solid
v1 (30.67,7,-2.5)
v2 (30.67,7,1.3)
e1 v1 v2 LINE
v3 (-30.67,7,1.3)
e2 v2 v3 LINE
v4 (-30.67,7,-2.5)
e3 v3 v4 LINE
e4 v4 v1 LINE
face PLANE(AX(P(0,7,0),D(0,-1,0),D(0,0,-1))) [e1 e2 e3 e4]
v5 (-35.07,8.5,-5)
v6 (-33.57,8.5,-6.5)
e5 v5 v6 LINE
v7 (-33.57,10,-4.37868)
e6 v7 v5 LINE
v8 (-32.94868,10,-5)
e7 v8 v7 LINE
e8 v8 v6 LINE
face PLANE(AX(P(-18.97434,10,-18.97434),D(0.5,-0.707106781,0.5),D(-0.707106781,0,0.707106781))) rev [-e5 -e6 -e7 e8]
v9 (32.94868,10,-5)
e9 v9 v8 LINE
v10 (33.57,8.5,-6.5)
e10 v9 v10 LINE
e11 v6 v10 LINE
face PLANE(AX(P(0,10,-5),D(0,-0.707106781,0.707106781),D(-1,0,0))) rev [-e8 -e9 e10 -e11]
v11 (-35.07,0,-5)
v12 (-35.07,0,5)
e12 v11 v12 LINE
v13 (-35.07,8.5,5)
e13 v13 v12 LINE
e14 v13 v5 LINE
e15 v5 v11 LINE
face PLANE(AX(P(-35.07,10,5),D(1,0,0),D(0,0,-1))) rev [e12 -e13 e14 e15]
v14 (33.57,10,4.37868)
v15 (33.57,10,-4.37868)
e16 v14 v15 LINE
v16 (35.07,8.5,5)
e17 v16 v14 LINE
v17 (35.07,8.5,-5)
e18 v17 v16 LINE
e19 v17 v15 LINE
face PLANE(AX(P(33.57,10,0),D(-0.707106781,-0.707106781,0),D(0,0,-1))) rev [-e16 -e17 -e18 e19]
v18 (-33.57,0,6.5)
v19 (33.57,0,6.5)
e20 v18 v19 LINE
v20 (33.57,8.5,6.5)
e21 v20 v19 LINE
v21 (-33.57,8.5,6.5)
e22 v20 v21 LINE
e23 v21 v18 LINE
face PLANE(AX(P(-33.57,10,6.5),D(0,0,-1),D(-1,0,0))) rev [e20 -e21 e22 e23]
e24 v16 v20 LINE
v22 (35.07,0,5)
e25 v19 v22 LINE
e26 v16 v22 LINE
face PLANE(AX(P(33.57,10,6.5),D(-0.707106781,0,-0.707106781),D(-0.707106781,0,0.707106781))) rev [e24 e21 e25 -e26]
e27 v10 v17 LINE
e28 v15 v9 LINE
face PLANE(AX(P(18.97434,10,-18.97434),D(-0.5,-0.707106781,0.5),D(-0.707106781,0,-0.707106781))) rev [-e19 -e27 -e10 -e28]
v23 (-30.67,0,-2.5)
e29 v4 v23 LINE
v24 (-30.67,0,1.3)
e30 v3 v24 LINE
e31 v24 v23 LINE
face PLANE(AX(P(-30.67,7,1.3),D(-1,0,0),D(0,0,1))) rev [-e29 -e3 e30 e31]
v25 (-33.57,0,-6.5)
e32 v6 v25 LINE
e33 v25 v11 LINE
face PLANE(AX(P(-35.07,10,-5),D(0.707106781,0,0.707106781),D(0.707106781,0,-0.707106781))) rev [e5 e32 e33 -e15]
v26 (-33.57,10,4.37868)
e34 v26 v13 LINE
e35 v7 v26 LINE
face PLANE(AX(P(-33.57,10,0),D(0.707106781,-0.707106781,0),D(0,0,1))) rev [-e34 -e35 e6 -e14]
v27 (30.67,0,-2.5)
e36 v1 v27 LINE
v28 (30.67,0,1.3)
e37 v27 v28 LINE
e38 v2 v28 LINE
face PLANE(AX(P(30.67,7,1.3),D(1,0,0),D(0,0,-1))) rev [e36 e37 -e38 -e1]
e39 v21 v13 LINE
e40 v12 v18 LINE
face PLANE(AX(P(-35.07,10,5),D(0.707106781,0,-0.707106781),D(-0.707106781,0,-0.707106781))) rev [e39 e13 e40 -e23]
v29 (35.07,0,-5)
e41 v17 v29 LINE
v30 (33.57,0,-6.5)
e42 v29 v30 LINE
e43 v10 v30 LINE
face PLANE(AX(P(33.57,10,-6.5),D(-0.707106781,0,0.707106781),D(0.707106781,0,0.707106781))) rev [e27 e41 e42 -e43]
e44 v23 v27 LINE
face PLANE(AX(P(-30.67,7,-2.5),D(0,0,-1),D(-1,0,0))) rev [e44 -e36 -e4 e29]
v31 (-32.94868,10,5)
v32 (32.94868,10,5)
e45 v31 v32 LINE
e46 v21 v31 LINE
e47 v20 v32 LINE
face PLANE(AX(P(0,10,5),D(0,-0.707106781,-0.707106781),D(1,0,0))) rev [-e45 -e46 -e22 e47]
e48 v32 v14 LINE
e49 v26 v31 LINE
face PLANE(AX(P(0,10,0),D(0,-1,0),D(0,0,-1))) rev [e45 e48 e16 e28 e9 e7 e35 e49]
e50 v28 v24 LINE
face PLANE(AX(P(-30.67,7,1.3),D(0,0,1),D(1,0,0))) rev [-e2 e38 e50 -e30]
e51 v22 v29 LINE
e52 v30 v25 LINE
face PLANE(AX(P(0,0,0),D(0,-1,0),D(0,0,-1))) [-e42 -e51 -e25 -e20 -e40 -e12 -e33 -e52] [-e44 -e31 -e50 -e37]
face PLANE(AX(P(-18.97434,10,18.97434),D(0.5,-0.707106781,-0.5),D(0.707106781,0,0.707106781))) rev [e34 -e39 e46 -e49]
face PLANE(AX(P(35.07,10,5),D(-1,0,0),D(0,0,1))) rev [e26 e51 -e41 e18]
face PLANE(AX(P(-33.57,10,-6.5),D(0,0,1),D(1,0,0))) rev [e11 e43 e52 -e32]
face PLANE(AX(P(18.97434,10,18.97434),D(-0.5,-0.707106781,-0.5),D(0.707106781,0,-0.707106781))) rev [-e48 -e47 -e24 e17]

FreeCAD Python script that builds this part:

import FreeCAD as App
import Part
import Sketcher
Q = App.Units.Quantity


def edges_at(feature, points):
    """Names of the edges that pass closest to the given points."""
    edges = feature.Shape.Edges
    near = lambda p: min(range(len(edges)), key=lambda i: edges[i].distToShape(Part.Vertex(*p))[0])
    return sorted({f"Edge{near(p) + 1}" for p in points})

doc = App.newDocument("Part")
params = doc.addObject("Spreadsheet::Sheet", "Params")
for row, (alias, value) in enumerate([
    ("sketch1_height", "10 mm"),
    ("sketch1_width", "67.14 mm"),
    ("pad1_length", "10 mm"),
    ("chamfer_size", "1.5 mm"),
    ("sketch2_height", "3.8 mm"),
    ("sketch2_width", "61.34 mm"),
    ("pocket1_length", "7 mm"),
], start=1):
    params.set(f"A{row}", alias)
    params.set(f"B{row}", "=" + value)
    params.setAlias(f"B{row}", alias)

body = doc.addObject("PartDesign::Body", "Body")

sketch1 = doc.addObject("Sketcher::SketchObject", "Sketch")
body.addObject(sketch1)
sketch1.AttachmentSupport = (doc.XZ_Plane, [""])
sketch1.MapMode = "FlatFace"
sketch1.addGeometry(Part.LineSegment(App.Vector(-33.6, -6.5, 0), App.Vector(-35.1, -5, 0)), False)
sketch1.addGeometry(Part.LineSegment(App.Vector(-35.1, -5, 0), App.Vector(-35.1, 5, 0)), False)
sketch1.addGeometry(Part.LineSegment(App.Vector(-35.1, 5, 0), App.Vector(-33.6, 6.5, 0)), False)
sketch1.addGeometry(Part.LineSegment(App.Vector(-33.6, 6.5, 0), App.Vector(33.6, 6.5, 0)), False)
sketch1.addGeometry(Part.LineSegment(App.Vector(33.6, 6.5, 0), App.Vector(35.1, 5, 0)), False)
sketch1.addGeometry(Part.LineSegment(App.Vector(35.1, 5, 0), App.Vector(35.1, -5, 0)), False)
sketch1.addGeometry(Part.LineSegment(App.Vector(35.1, -5, 0), App.Vector(33.6, -6.5, 0)), False)
sketch1.addGeometry(Part.LineSegment(App.Vector(33.6, -6.5, 0), App.Vector(-33.6, -6.5, 0)), False)
sketch1.addConstraint(Sketcher.Constraint("Coincident", 0, 2, 1, 1))
sketch1.addConstraint(Sketcher.Constraint("Coincident", 1, 2, 2, 1))
sketch1.addConstraint(Sketcher.Constraint("Coincident", 2, 2, 3, 1))
sketch1.addConstraint(Sketcher.Constraint("Coincident", 3, 2, 4, 1))
sketch1.addConstraint(Sketcher.Constraint("Coincident", 4, 2, 5, 1))
sketch1.addConstraint(Sketcher.Constraint("Coincident", 5, 2, 6, 1))
sketch1.addConstraint(Sketcher.Constraint("Coincident", 6, 2, 7, 1))
sketch1.addConstraint(Sketcher.Constraint("Coincident", 7, 2, 0, 1))
sketch1.addConstraint(Sketcher.Constraint("Vertical", 1))
sketch1.addConstraint(Sketcher.Constraint("Horizontal", 3))
sketch1.addConstraint(Sketcher.Constraint("Vertical", 5))
sketch1.addConstraint(Sketcher.Constraint("Horizontal", 7))
sketch1.addConstraint(Sketcher.Constraint("Symmetric", 0, 2, 4, 2, -1, 1))
sketch1.addConstraint(Sketcher.Constraint("Symmetric", 2, 2, 6, 2, -1, 1))
sketch1.addConstraint(Sketcher.Constraint("Perpendicular", 0, 2))
sketch1.addConstraint(Sketcher.Constraint("Perpendicular", 2, 4))
sketch1.addConstraint(Sketcher.Constraint("Perpendicular", 4, 6))
sketch1.addConstraint(Sketcher.Constraint("Horizontal", 1, 2, 4, 2))
sketch1.addConstraint(Sketcher.Constraint("Vertical", 3, 2, 6, 2))
sketch1.addConstraint(Sketcher.Constraint("DistanceY", 1, 1, 1, 2, Q("10 mm")))
sketch1.addConstraint(Sketcher.Constraint("DistanceY", 6, 2, 3, 2, Q("13 mm")))
sketch1.addConstraint(Sketcher.Constraint("DistanceX", 3, 1, 3, 2, Q("67.14 mm")))
sketch1.setExpression("Constraints[19]", "Params.sketch1_height")
sketch1.setExpression("Constraints[21]", "Params.sketch1_width")
pad1 = doc.addObject("PartDesign::Pad", "Pad")
body.addObject(pad1)
pad1.Profile = sketch1
pad1.setExpression("Length", "Params.pad1_length")
pad1.Reversed = True
doc.recompute()

chamfer = doc.addObject("PartDesign::Chamfer", "Chamfer")
body.addObject(chamfer)
chamfer.Base = (pad1, edges_at(pad1, [
    (0, 10, 6.5),
    (34.32, 10, 5.75),
    (35.07, 10, 0),
    (34.32, 10, -5.75),
    (0, 10, -6.5),
    (-34.32, 10, -5.75),
    (-35.07, 10, 0),
    (-34.32, 10, 5.75),
]))
chamfer.setExpression("Size", "Params.chamfer_size")

sketch2 = doc.addObject("Sketcher::SketchObject", "Sketch001")
body.addObject(sketch2)
sketch2.AttachmentSupport = (doc.XZ_Plane, [""])
sketch2.MapMode = "FlatFace"
sketch2.addGeometry(Part.LineSegment(App.Vector(-30.7, 1.3, 0), App.Vector(-30.7, -2.5, 0)), False)
sketch2.addGeometry(Part.LineSegment(App.Vector(-30.7, -2.5, 0), App.Vector(30.7, -2.5, 0)), False)
sketch2.addGeometry(Part.LineSegment(App.Vector(30.7, -2.5, 0), App.Vector(30.7, 1.3, 0)), False)
sketch2.addGeometry(Part.LineSegment(App.Vector(30.7, 1.3, 0), App.Vector(-30.7, 1.3, 0)), False)
sketch2.addConstraint(Sketcher.Constraint("Coincident", 0, 2, 1, 1))
sketch2.addConstraint(Sketcher.Constraint("Coincident", 1, 2, 2, 1))
sketch2.addConstraint(Sketcher.Constraint("Coincident", 2, 2, 3, 1))
sketch2.addConstraint(Sketcher.Constraint("Coincident", 3, 2, 0, 1))
sketch2.addConstraint(Sketcher.Constraint("Vertical", 0))
sketch2.addConstraint(Sketcher.Constraint("Horizontal", 1))
sketch2.addConstraint(Sketcher.Constraint("Vertical", 2))
sketch2.addConstraint(Sketcher.Constraint("Horizontal", 3))
sketch2.addConstraint(Sketcher.Constraint("DistanceY", 0, 2, 0, 1, Q("3.8 mm")))
sketch2.addConstraint(Sketcher.Constraint("DistanceX", 1, 1, 1, 2, Q("61.34 mm")))
sketch2.addConstraint(Sketcher.Constraint("DistanceY", 0, 2, -1, 1, Q("2.5 mm")))
sketch2.addConstraint(Sketcher.Constraint("DistanceX", 0, 2, -1, 1, Q("30.67 mm")))
sketch2.setExpression("Constraints[8]", "Params.sketch2_height")
sketch2.setExpression("Constraints[9]", "Params.sketch2_width")
pocket1 = doc.addObject("PartDesign::Pocket", "Pocket")
body.addObject(pocket1)
pocket1.Profile = sketch2
pocket1.setExpression("Length", "Params.pocket1_length")

doc.recompute()
